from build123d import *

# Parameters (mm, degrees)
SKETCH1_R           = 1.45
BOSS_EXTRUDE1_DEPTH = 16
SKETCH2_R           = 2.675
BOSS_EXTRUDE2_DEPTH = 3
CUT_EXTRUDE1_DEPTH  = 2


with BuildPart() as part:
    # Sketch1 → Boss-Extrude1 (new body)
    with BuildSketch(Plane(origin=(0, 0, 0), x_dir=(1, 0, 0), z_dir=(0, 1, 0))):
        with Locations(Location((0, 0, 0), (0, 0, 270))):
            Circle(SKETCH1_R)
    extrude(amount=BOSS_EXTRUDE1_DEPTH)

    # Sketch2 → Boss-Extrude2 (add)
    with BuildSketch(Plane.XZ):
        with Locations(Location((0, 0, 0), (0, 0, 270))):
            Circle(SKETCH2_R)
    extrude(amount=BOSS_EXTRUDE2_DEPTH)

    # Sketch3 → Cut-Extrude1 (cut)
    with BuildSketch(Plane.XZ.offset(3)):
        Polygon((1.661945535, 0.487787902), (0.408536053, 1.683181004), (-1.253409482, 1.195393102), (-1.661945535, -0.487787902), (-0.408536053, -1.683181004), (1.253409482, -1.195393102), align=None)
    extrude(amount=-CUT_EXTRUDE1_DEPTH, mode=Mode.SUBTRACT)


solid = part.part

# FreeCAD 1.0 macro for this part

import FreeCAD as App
import Part
import Sketcher

V = App.Vector
Q = App.Units.Quantity

doc = App.newDocument("Part")
body = doc.addObject("PartDesign::Body", "Body")

sketch1 = body.newObject("Sketcher::SketchObject", "Sketch")
sketch1.AttachmentSupport = (doc.getObject("XZ_Plane"), [""])
sketch1.MapMode = "FlatFace"
sketch1.addGeometry(Part.Circle(V(0, 0, 0), V(0, 0, 1), 1.45), False)
sketch1.addConstraint([
    Sketcher.Constraint("Coincident", 0, 3, -1, 1),
    Sketcher.Constraint("Diameter", 0, Q("2.9 mm")),
])
pad1 = body.newObject("PartDesign::Pad", "Pad")
pad1.Profile = sketch1
pad1.Length = 16
pad1.Reversed = True

sketch2 = body.newObject("Sketcher::SketchObject", "Sketch001")
sketch2.AttachmentSupport = (doc.getObject("XZ_Plane"), [""])
sketch2.MapMode = "FlatFace"
sketch2.addGeometry(Part.Circle(V(0, 0, 0), V(0, 0, 1), 2.675), False)
sketch2.addConstraint([
    Sketcher.Constraint("Coincident", 0, 3, -1, 1),
    Sketcher.Constraint("Diameter", 0, Q("5.35 mm")),
])
pad2 = body.newObject("PartDesign::Pad", "Pad001")
pad2.Profile = sketch2
pad2.Length = 3

sketch3 = body.newObject("Sketcher::SketchObject", "Sketch002")
sketch3.AttachmentSupport = (doc.getObject("XZ_Plane"), [""])
sketch3.MapMode = "FlatFace"
sketch3.AttachmentOffset = App.Placement(V(0, 0, 3), App.Rotation())
sketch3.addGeometry([
    Part.LineSegment(V(1.661946, 0.487788, 0), V(0.408536, 1.683181, 0)),
    Part.LineSegment(V(0.408536, 1.683181, 0), V(-1.253409, 1.195393, 0)),
    Part.LineSegment(V(-1.253409, 1.195393, 0), V(-1.661946, -0.487788, 0)),
    Part.LineSegment(V(-1.661946, -0.487788, 0), V(-0.408536, -1.683181, 0)),
    Part.LineSegment(V(-0.408536, -1.683181, 0), V(1.253409, -1.195393, 0)),
    Part.LineSegment(V(1.253409, -1.195393, 0), V(1.661946, 0.487788, 0)),
], False)
sketch3.addConstraint([
    Sketcher.Constraint("Coincident", 0, 2, 1, 1),
    Sketcher.Constraint("Coincident", 1, 2, 2, 1),
    Sketcher.Constraint("Coincident", 2, 2, 3, 1),
    Sketcher.Constraint("Coincident", 3, 2, 4, 1),
    Sketcher.Constraint("Coincident", 4, 2, 5, 1),
    Sketcher.Constraint("Coincident", 5, 2, 0, 1),
    Sketcher.Constraint("Symmetric", 0, 2, 3, 2, -1, 1),
    Sketcher.Constraint("Symmetric", 1, 2, 4, 2, -1, 1),
    Sketcher.Constraint("Symmetric", 2, 2, 5, 2, -1, 1),
    Sketcher.Constraint("Equal", 0, 1),
    Sketcher.Constraint("Equal", 1, 2),
    Sketcher.Constraint("Distance", 0, Q("1.732051 mm")),
    Sketcher.Constraint("DistanceY", -1, 1, 0, 2, Q("1.683181 mm")),
    Sketcher.Constraint("DistanceX", 1, 2, -1, 1, Q("1.253409 mm")),
    Sketcher.Constraint("DistanceY", 2, 2, 1, 2, Q("1.683181 mm")),
])
pocket1 = body.newObject("PartDesign::Pocket", "Pocket")
pocket1.Profile = sketch3
pocket1.Length = 2

doc.recompute()
